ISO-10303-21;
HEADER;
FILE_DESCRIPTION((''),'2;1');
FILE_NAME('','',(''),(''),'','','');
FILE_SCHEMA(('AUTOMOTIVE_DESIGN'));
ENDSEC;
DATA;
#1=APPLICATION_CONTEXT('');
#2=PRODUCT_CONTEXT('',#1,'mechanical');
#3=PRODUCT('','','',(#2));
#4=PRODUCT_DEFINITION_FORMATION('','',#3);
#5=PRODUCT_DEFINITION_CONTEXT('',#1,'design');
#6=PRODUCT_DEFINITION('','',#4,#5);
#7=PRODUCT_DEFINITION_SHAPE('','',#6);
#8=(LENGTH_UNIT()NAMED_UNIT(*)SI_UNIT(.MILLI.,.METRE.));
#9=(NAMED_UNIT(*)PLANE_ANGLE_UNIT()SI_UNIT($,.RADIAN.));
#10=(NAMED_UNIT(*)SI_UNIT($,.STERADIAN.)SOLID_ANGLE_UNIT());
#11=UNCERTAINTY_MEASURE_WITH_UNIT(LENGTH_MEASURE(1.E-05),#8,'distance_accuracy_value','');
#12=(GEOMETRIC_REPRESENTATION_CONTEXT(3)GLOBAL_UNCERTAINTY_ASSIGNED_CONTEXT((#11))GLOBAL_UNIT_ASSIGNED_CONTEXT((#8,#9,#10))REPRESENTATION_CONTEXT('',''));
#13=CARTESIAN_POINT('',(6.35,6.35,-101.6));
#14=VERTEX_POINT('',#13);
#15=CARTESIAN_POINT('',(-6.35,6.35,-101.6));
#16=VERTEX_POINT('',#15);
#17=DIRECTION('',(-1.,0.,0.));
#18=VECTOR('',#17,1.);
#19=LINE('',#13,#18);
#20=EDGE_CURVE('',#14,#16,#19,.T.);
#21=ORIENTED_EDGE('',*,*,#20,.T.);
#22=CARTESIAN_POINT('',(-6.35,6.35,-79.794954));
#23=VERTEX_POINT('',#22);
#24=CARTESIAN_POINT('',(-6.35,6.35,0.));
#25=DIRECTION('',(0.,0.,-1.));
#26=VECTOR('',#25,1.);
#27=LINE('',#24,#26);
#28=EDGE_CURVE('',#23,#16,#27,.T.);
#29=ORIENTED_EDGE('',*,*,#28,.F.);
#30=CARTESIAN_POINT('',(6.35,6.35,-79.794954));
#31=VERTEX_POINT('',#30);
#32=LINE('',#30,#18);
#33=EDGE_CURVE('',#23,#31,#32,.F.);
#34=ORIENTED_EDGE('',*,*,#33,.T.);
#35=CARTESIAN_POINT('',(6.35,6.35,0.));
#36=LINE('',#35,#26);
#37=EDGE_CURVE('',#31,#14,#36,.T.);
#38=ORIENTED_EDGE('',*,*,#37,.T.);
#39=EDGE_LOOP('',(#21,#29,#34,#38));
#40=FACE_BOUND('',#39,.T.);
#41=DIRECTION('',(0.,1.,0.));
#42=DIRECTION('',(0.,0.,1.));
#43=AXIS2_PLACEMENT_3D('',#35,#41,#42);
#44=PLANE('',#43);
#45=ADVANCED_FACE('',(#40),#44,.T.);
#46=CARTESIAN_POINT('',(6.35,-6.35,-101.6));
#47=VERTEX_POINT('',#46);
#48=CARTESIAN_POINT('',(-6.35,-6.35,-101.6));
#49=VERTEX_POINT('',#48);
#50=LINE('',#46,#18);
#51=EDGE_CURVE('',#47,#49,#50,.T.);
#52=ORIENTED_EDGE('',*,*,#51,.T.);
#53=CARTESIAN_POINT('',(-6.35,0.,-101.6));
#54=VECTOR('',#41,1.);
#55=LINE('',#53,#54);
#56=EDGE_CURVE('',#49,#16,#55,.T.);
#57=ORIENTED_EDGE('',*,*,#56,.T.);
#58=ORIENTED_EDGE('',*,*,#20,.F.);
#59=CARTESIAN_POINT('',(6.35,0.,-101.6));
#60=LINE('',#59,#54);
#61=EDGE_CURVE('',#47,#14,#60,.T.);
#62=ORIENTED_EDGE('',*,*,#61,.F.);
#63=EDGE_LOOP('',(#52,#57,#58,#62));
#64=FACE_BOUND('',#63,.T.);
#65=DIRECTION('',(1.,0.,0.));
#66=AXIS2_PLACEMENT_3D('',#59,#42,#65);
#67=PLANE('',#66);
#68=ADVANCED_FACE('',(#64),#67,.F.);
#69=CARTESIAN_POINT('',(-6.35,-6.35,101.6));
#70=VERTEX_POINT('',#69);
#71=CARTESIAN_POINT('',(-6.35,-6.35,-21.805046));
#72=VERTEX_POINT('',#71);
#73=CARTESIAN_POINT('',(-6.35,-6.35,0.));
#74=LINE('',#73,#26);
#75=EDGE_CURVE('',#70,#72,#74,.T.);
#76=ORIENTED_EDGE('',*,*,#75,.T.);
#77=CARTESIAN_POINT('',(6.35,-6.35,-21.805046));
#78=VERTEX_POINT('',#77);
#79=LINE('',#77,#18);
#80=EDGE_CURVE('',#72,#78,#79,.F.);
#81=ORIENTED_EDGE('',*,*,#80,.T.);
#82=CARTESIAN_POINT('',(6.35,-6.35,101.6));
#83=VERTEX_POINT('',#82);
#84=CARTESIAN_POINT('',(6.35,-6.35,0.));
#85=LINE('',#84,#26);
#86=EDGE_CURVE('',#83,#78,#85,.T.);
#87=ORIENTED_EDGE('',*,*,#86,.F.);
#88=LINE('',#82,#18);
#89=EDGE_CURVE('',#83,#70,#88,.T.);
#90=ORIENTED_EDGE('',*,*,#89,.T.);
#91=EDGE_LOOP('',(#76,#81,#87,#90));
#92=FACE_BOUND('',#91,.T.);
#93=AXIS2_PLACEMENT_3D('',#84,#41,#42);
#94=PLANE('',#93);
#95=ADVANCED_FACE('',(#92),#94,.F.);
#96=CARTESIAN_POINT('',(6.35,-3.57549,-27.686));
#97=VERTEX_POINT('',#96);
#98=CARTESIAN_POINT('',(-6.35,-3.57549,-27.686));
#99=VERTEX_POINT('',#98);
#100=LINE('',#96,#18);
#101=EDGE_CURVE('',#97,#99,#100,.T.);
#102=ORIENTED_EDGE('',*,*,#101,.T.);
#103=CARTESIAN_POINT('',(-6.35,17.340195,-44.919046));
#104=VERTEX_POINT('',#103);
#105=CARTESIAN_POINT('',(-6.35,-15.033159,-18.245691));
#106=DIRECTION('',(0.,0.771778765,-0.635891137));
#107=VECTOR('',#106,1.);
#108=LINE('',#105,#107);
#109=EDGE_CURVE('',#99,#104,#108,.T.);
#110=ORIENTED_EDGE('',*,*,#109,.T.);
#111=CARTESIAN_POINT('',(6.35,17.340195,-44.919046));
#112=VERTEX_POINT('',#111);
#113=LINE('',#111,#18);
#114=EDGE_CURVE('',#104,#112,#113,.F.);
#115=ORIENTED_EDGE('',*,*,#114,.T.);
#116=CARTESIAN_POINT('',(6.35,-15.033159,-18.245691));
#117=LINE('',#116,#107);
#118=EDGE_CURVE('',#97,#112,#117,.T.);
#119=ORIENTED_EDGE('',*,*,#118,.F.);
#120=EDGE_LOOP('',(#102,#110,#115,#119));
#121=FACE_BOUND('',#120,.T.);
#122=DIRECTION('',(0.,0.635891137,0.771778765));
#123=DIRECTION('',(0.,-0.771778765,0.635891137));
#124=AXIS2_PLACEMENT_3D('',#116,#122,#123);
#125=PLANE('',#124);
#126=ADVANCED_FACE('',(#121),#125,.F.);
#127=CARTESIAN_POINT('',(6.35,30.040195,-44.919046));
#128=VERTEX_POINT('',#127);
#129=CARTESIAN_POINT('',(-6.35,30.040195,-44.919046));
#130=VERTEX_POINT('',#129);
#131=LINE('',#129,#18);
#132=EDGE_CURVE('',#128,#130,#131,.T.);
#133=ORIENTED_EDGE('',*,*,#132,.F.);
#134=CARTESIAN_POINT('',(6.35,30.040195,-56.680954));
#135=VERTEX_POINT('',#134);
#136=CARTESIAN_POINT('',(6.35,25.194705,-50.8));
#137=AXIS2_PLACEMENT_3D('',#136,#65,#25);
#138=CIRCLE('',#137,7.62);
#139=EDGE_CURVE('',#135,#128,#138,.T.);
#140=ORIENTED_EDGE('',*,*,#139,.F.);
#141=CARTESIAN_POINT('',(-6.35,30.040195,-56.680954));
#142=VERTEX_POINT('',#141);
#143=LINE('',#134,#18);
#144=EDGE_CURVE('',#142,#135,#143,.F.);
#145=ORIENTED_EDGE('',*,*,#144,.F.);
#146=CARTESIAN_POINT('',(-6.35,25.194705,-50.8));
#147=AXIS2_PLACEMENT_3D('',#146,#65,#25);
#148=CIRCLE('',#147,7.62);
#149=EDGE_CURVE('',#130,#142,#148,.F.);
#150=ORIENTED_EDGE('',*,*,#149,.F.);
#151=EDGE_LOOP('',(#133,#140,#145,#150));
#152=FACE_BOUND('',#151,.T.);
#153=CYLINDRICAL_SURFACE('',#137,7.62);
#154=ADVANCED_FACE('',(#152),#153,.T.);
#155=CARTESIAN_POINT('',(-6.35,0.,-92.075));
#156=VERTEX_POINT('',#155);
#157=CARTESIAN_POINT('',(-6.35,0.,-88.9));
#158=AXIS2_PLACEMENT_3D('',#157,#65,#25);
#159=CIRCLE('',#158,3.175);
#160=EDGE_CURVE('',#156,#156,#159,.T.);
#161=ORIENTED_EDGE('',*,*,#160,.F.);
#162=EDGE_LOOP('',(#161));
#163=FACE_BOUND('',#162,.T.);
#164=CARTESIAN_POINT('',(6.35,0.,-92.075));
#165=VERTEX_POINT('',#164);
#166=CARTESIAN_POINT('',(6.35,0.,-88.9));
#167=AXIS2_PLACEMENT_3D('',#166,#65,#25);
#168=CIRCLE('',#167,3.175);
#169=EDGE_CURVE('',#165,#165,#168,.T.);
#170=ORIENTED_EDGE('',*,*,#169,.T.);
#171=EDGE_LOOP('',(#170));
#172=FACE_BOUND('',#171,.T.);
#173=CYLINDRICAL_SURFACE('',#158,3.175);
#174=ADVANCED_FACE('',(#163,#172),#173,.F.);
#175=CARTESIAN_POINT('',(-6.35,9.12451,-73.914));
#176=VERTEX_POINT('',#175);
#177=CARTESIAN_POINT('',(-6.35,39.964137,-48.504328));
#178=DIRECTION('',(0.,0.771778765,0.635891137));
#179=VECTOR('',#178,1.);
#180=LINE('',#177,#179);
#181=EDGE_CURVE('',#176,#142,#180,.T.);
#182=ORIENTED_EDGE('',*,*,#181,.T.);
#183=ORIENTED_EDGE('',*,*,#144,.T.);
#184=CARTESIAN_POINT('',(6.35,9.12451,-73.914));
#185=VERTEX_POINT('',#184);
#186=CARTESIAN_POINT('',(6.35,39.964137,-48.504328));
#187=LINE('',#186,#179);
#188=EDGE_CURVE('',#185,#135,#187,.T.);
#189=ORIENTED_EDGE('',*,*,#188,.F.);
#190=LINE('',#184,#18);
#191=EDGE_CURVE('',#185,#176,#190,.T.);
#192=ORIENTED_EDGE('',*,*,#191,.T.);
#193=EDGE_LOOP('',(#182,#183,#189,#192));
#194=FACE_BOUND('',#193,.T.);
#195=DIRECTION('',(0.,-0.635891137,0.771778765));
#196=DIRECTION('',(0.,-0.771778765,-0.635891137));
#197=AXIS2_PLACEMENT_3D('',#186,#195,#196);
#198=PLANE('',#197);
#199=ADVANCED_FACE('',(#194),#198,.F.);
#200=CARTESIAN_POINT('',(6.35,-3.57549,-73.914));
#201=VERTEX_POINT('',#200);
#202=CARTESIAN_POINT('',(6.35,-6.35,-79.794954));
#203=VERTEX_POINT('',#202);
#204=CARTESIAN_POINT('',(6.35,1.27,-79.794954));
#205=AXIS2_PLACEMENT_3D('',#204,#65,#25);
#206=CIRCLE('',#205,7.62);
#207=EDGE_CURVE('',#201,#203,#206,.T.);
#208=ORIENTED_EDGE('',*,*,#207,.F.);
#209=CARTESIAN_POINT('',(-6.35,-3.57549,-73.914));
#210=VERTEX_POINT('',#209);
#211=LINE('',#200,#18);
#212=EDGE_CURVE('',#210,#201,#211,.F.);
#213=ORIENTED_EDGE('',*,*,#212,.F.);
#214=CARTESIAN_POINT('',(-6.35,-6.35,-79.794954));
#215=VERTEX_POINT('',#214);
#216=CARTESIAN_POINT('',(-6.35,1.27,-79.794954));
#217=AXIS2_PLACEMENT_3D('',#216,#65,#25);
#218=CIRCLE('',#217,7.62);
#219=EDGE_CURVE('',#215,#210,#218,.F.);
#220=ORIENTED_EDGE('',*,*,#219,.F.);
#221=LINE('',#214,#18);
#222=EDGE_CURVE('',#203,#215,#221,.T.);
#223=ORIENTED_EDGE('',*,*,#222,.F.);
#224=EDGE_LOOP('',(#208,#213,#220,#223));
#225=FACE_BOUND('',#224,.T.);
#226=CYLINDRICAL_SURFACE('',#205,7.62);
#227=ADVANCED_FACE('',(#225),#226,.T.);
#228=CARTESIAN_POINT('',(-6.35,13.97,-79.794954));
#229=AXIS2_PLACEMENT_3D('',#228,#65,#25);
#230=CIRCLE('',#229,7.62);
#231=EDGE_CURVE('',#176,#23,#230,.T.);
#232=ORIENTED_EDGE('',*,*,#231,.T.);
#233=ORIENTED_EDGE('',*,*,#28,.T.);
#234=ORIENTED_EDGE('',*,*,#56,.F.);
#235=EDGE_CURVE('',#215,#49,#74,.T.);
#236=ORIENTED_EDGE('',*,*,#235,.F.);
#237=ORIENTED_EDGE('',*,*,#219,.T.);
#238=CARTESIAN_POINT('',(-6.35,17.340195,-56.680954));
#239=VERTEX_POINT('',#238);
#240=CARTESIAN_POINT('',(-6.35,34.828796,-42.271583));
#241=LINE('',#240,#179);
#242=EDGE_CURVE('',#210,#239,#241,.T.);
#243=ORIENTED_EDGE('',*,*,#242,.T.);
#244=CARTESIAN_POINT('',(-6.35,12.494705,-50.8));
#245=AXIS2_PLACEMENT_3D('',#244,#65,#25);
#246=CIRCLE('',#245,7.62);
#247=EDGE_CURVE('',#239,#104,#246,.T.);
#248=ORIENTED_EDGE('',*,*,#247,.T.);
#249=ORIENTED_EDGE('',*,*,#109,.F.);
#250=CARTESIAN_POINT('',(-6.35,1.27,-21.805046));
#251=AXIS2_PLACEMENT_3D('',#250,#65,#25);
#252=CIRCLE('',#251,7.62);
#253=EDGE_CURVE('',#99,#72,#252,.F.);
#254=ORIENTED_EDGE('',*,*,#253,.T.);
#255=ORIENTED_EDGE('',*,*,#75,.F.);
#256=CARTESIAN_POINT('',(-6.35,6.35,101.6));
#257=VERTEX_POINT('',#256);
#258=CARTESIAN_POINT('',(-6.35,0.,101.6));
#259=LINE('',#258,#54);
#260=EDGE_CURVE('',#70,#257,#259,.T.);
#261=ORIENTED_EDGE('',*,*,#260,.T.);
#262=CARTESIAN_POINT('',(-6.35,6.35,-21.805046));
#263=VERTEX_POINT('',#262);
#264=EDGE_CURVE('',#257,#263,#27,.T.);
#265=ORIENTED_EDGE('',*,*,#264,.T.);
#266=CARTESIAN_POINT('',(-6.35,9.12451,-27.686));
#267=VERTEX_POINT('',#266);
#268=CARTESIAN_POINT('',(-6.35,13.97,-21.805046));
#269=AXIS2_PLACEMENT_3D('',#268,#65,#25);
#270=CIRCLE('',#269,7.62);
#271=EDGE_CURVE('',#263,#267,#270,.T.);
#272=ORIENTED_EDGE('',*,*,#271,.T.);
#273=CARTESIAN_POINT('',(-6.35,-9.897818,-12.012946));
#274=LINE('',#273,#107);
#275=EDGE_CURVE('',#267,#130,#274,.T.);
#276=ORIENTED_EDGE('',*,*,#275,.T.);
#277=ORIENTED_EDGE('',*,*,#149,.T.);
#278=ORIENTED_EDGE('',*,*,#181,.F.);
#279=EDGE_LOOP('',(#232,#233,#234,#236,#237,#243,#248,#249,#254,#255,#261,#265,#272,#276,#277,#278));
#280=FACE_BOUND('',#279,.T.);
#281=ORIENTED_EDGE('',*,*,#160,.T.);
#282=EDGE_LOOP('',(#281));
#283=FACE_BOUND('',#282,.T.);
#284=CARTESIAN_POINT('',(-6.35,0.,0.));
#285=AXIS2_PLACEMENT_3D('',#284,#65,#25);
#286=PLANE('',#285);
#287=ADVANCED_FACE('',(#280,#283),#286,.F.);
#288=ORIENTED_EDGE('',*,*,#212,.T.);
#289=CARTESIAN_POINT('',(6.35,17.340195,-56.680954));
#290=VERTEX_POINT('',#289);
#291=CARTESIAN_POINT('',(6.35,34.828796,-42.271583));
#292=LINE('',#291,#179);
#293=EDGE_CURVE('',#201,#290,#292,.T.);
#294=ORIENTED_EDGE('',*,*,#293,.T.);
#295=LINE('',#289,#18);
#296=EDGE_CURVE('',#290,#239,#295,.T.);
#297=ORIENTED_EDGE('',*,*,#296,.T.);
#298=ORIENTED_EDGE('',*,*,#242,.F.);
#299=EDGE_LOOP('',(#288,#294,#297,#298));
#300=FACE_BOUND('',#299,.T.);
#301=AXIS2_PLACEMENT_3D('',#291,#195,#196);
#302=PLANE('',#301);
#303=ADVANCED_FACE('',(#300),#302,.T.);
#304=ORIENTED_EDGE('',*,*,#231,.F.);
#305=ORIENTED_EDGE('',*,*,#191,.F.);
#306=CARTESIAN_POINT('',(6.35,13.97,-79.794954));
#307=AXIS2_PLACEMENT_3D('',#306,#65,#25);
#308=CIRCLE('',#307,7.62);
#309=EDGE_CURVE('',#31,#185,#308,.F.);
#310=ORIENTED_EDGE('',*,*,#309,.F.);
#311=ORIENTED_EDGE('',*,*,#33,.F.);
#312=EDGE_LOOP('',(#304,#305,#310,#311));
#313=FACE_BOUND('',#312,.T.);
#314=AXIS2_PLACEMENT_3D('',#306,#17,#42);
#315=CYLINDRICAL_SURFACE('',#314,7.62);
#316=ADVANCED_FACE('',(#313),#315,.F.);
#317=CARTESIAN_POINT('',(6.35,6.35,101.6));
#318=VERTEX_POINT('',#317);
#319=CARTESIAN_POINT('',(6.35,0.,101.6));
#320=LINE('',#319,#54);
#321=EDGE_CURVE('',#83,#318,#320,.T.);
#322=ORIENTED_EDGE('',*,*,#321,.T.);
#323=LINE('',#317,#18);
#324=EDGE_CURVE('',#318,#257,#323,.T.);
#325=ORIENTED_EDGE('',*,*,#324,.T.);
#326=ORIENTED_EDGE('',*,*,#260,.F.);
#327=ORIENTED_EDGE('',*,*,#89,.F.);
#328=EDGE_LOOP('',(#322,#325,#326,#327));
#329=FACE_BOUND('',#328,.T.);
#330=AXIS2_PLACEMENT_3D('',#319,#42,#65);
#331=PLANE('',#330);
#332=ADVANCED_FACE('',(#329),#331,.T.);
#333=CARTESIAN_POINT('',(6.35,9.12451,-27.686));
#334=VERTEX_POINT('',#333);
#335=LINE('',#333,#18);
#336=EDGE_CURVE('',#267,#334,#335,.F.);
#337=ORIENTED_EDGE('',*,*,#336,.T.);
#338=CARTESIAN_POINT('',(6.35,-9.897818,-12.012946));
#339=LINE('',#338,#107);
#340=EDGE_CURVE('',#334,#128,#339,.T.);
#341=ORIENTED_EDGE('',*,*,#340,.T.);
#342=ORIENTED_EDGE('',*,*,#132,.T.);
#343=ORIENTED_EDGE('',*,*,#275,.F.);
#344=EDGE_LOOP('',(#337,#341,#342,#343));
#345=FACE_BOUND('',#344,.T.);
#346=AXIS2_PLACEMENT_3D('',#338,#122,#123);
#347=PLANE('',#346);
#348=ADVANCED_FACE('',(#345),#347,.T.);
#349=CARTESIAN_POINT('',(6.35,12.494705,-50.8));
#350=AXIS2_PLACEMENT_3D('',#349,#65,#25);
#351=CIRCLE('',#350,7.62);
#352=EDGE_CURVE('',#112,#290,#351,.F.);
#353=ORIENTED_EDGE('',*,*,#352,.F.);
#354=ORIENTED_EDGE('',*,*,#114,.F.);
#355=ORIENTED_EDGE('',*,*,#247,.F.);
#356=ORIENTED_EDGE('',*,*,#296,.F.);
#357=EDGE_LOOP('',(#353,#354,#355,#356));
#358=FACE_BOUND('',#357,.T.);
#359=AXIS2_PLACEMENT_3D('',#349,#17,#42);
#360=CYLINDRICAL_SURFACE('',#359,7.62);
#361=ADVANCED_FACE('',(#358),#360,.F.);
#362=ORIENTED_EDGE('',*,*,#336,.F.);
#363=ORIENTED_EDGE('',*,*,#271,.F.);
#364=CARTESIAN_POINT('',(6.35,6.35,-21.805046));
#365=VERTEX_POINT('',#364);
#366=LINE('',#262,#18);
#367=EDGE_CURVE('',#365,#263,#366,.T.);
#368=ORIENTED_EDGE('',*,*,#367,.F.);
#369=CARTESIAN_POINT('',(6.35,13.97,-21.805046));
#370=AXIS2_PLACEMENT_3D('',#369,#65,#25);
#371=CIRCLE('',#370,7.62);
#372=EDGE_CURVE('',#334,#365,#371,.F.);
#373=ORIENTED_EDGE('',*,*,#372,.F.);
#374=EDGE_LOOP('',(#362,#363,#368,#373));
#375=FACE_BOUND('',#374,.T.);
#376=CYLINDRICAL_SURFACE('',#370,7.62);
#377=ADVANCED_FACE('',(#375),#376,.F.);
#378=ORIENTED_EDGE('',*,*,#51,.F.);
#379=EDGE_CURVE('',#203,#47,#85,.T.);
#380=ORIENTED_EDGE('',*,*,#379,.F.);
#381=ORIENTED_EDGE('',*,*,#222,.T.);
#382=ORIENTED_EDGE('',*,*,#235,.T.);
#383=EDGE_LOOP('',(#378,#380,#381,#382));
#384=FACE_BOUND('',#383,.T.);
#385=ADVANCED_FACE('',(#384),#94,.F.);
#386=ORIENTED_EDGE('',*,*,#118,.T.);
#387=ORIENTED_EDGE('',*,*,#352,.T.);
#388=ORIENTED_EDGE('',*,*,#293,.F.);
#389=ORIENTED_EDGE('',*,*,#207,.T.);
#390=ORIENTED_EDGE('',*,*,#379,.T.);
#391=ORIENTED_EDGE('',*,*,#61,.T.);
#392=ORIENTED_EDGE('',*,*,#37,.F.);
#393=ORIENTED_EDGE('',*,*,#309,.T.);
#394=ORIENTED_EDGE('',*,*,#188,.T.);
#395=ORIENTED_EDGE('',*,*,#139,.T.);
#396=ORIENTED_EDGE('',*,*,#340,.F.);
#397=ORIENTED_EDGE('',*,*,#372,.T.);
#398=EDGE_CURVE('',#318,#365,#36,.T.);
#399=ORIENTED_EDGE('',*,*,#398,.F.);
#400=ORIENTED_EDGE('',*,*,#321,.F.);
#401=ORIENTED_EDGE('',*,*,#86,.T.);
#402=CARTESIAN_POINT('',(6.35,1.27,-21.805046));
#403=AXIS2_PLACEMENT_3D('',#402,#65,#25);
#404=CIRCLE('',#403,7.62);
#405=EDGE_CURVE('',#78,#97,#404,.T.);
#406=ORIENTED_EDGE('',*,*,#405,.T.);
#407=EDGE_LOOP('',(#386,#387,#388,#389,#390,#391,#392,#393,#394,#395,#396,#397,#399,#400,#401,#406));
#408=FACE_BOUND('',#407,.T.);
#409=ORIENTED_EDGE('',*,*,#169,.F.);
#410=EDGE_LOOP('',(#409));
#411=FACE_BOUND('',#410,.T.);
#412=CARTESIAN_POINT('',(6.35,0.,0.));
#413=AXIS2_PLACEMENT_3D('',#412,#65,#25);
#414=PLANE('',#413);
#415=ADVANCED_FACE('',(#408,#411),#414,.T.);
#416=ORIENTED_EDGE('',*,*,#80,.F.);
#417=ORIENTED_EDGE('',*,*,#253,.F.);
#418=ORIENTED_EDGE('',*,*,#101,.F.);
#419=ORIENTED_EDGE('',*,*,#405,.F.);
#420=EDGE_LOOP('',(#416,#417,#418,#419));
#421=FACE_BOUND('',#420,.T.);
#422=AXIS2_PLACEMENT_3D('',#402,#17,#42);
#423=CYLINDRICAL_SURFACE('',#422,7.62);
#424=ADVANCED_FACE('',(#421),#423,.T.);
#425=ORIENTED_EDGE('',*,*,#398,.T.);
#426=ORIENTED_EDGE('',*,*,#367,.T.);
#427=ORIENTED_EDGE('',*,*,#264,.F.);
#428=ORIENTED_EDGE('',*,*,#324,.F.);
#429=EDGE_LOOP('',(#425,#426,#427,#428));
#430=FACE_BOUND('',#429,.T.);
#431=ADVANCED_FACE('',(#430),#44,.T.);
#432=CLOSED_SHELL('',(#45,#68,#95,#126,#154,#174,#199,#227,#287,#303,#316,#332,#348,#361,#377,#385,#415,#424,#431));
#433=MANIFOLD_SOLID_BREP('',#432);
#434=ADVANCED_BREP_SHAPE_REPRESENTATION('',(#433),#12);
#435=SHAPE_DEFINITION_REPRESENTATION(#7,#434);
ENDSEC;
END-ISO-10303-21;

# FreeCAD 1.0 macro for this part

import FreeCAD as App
import Part
import Sketcher

V = App.Vector
Q = App.Units.Quantity


def edges_at(feature, points):
    """Names of the edges that pass closest to the given points."""
    edges = feature.Shape.Edges
    near = lambda p: min(range(len(edges)), key=lambda i: edges[i].distToShape(Part.Vertex(*p))[0])
    return sorted({f"Edge{near(p) + 1}" for p in points})


def add_polygon(sketch, points):
    """Adds a closed chain of lines whose ends are joined by coincident constraints."""
    first, n = sketch.GeometryCount, len(points)
    for a, b in zip(points, points[1:] + points[:1]):
        sketch.addGeometry(Part.LineSegment(App.Vector(*a, 0), App.Vector(*b, 0)), False)
    for i in range(n):
        sketch.addConstraint(Sketcher.Constraint("Coincident", first + i, 2, first + (i + 1) % n, 1))

doc = App.newDocument("Part")
body = doc.addObject("PartDesign::Body", "Body")

# Sketch on YZ plane
sketch1 = doc.addObject("Sketcher::SketchObject", "Sketch")
body.addObject(sketch1)
sketch1.AttachmentSupport = (doc.YZ_Plane, [""])
sketch1.MapMode = "FlatFace"
add_polygon(sketch1, [(-6, -76), (-6, -102), (6, -102), (6, -76), (37, -51), (6, -25), (6, 102), (-6, 102), (-6, -25), (6, -36), (24, -51), (6, -66)])  # lines 0-11
sketch1.addConstraint([
    Sketcher.Constraint("Vertical", 0),
    Sketcher.Constraint("Horizontal", 1),
    Sketcher.Constraint("Vertical", 2),
    Sketcher.Constraint("Vertical", 5),
    Sketcher.Constraint("Horizontal", 6),
    Sketcher.Constraint("Vertical", 7),
    Sketcher.Constraint("Symmetric", 0, 2, 5, 2, -1, 1),
    Sketcher.Constraint("Symmetric", 4, 2, 7, 2, -2),
    Sketcher.Constraint("Symmetric", 2, 2, 11, 2, -2),
    Sketcher.Constraint("Parallel", 4, 8),
    Sketcher.Constraint("Parallel", 8, 9),
    Sketcher.Constraint("Parallel", 3, 10),
    Sketcher.Constraint("Parallel", 10, 11),
    Sketcher.Constraint("Vertical", 5, 2, 8, 2),
    Sketcher.Constraint("Vertical", 8, 2, 10, 2),
    Sketcher.Constraint("Equal", 3, 4),
    Sketcher.Constraint("DistanceY", 0, 2, 0, 1, Q("1 in")),
    Sketcher.Constraint("DistanceY", 5, 1, 5, 2, Q("5 in")),
    Sketcher.Constraint("DistanceX", 1, 1, 1, 2, Q("0.5 in")),
    Sketcher.Constraint("DistanceY", 0, 2, -1, 1, Q("4 in")),
    Sketcher.Constraint("Distance", 9, 23.488451),
])
pad1 = doc.addObject("PartDesign::Pad", "Pad")
body.addObject(pad1)
pad1.Profile = sketch1
pad1.Length = Q("0.5 in")
pad1.Midplane = True
doc.recompute()

fillet = doc.addObject("PartDesign::Fillet", "Fillet")
body.addObject(fillet)
fillet.Base = (pad1, edges_at(pad1, [
    (0, -6.35, -76.2),
    (0, 24.478, -50.8),
    (0, -6.35, -25.4),
    (0, 6.35, -25.4),
    (0, 37.178, -50.8),
    (0, 6.35, -76.2),
]))
fillet.Radius = Q("0.3 in")

# Sketch on YZ plane
sketch2 = doc.addObject("Sketcher::SketchObject", "Sketch001")
body.addObject(sketch2)
sketch2.AttachmentSupport = (doc.YZ_Plane, [""])
sketch2.MapMode = "FlatFace"
sketch2.AttachmentOffset = App.Placement(V(0, 0, 0.25 * 25.4), App.Rotation())
sketch2.addGeometry(Part.Circle(V(0, -88.9, 0), V(0, 0, 1), 3.2), False)
sketch2.addConstraint([
    Sketcher.Constraint("PointOnObject", 0, 3, -2),
    Sketcher.Constraint("Diameter", 0, Q("0.25 in")),
    Sketcher.Constraint("DistanceY", 0, 3, -1, 1, Q("3.5 in")),
])
pocket1 = doc.addObject("PartDesign::Pocket", "Pocket")
body.addObject(pocket1)
pocket1.Profile = sketch2
pocket1.Type = "ThroughAll"

doc.recompute()
